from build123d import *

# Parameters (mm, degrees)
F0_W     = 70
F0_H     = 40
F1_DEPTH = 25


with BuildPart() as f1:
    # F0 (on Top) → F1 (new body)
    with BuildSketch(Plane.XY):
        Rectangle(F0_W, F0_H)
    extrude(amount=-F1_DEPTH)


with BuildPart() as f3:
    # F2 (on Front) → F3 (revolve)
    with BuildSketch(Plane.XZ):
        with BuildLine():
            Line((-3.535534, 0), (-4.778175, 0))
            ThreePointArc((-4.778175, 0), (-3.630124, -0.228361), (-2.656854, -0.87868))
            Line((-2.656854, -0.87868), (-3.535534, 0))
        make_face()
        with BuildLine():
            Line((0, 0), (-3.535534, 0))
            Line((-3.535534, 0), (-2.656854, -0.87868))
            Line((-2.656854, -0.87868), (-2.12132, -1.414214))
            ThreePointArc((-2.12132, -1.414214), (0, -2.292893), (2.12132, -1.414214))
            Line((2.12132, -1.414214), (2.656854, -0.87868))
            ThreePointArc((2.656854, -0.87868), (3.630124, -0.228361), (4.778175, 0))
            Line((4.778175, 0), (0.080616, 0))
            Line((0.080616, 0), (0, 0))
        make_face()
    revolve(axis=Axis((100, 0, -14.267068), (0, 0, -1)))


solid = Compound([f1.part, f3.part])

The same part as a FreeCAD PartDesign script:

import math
import FreeCAD as App
import Part
import Sketcher

V = App.Vector
Q = App.Units.Quantity

doc = App.newDocument("Part")
params = doc.addObject("Spreadsheet::Sheet", "Params")
for row, (alias, value) in enumerate([
    ("sketch1_width", "70 mm"),
    ("sketch1_height", "40 mm"),
    ("pad1_length", "25 mm"),
    ("sketch2_radius", "3.000001 mm"),
    ("revolution_angle", "360 deg"),
], start=1):
    params.set(f"A{row}", alias)
    params.set(f"B{row}", "=" + value)
    params.setAlias(f"B{row}", alias)

body = doc.addObject("PartDesign::Body", "Body")

# Sketch on XY plane
sketch1 = body.newObject("Sketcher::SketchObject", "Sketch")
sketch1.AttachmentSupport = (doc.getObject("XY_Plane"), [""])
sketch1.MapMode = "FlatFace"
sketch1.addGeometry(Part.LineSegment(V(-35, 20, 0), V(-35, -20, 0)), False)
sketch1.addGeometry(Part.LineSegment(V(-35, -20, 0), V(35, -20, 0)), False)
sketch1.addGeometry(Part.LineSegment(V(35, -20, 0), V(35, 20, 0)), False)
sketch1.addGeometry(Part.LineSegment(V(35, 20, 0), V(-35, 20, 0)), False)
sketch1.addConstraint(Sketcher.Constraint("Coincident", 0, 2, 1, 1))
sketch1.addConstraint(Sketcher.Constraint("Coincident", 1, 2, 2, 1))
sketch1.addConstraint(Sketcher.Constraint("Coincident", 2, 2, 3, 1))
sketch1.addConstraint(Sketcher.Constraint("Coincident", 3, 2, 0, 1))
sketch1.addConstraint(Sketcher.Constraint("Vertical", 0))
sketch1.addConstraint(Sketcher.Constraint("Horizontal", 1))
sketch1.addConstraint(Sketcher.Constraint("Vertical", 2))
sketch1.addConstraint(Sketcher.Constraint("Horizontal", 3))
sketch1.addConstraint(Sketcher.Constraint("Symmetric", 0, 2, 2, 2, -1, 1))
sketch1.addConstraint(Sketcher.Constraint("DistanceX", 1, 1, 1, 2, Q("70 mm")))
sketch1.addConstraint(Sketcher.Constraint("DistanceY", 0, 2, 0, 1, Q("40 mm")))
sketch1.setExpression("Constraints[9]", "Params.sketch1_width")
sketch1.setExpression("Constraints[10]", "Params.sketch1_height")
pad1 = body.newObject("PartDesign::Pad", "Pad")
pad1.Profile = sketch1
pad1.setExpression("Length", "Params.pad1_length")
pad1.Reversed = True
body2 = doc.addObject("PartDesign::Body", "Body001")

# Sketch on XZ plane
sketch2 = body2.newObject("Sketcher::SketchObject", "Sketch001")
sketch2.AttachmentSupport = (doc.getObject("XZ_Plane001"), [""])
sketch2.MapMode = "FlatFace"
sketch2.addGeometry(Part.ArcOfCircle(Part.Circle(V(-4.8, -3, 0), V(0, 0, 1), 3), math.radians(45), math.radians(90)), False)
sketch2.addGeometry(Part.LineSegment(V(-2.7, -0.9, 0), V(-2.1, -1.4, 0)), False)
sketch2.addGeometry(Part.ArcOfCircle(Part.Circle(V(0, 0.7, 0), V(0, 0, 1), 3), math.radians(-135), math.radians(-45)), False)
sketch2.addGeometry(Part.LineSegment(V(2.1, -1.4, 0), V(2.7, -0.9, 0)), False)
sketch2.addGeometry(Part.ArcOfCircle(Part.Circle(V(4.8, -3, 0), V(0, 0, 1), 3), math.radians(90), math.radians(135)), False)
sketch2.addGeometry(Part.LineSegment(V(4.8, 0, 0), V(-4.8, 0, 0)), False)
sketch2.addGeometry(Part.LineSegment(V(100, 0.7, 0), V(100, -3, 0)), True)  # axis
sketch2.addConstraint(Sketcher.Constraint("Tangent", 0, 1, 1, 1))
sketch2.addConstraint(Sketcher.Constraint("Tangent", 1, 2, 2, 1))
sketch2.addConstraint(Sketcher.Constraint("Tangent", 2, 2, 3, 1))
sketch2.addConstraint(Sketcher.Constraint("Tangent", 3, 2, 4, 2))
sketch2.addConstraint(Sketcher.Constraint("Tangent", 4, 1, 5, 1))
sketch2.addConstraint(Sketcher.Constraint("Tangent", 5, 2, 0, 2))
sketch2.addConstraint(Sketcher.Constraint("Horizontal", 5))
sketch2.addConstraint(Sketcher.Constraint("Vertical", 6))
sketch2.addConstraint(Sketcher.Constraint("Equal", 0, 4))
sketch2.addConstraint(Sketcher.Constraint("Symmetric", 4, 1, 5, 2, -1, 1))
sketch2.addConstraint(Sketcher.Constraint("PointOnObject", 2, 3, -2))
sketch2.addConstraint(Sketcher.Constraint("Perpendicular", 1, 3))
sketch2.addConstraint(Sketcher.Constraint("Horizontal", 2, 3, 6, 1))
sketch2.addConstraint(Sketcher.Constraint("Horizontal", 4, 3, 6, 2))
sketch2.addConstraint(Sketcher.Constraint("Radius", 2, Q("3.000001 mm")))
sketch2.addConstraint(Sketcher.Constraint("DistanceX", -1, 1, 6, 1, Q("100 mm")))
sketch2.addConstraint(Sketcher.Constraint("DistanceY", 6, 2, 6, 1, Q("3.707101 mm")))
sketch2.addConstraint(Sketcher.Constraint("Radius", 0, Q("2.999994 mm")))
sketch2.setExpression("Constraints[14]", "Params.sketch2_radius")
revolution = body2.newObject("PartDesign::Revolution", "Revolution")
revolution.Profile = sketch2
revolution.ReferenceAxis = (sketch2, ["Axis0"])
revolution.setExpression("Angle", "Params.revolution_angle")

doc.recompute()
